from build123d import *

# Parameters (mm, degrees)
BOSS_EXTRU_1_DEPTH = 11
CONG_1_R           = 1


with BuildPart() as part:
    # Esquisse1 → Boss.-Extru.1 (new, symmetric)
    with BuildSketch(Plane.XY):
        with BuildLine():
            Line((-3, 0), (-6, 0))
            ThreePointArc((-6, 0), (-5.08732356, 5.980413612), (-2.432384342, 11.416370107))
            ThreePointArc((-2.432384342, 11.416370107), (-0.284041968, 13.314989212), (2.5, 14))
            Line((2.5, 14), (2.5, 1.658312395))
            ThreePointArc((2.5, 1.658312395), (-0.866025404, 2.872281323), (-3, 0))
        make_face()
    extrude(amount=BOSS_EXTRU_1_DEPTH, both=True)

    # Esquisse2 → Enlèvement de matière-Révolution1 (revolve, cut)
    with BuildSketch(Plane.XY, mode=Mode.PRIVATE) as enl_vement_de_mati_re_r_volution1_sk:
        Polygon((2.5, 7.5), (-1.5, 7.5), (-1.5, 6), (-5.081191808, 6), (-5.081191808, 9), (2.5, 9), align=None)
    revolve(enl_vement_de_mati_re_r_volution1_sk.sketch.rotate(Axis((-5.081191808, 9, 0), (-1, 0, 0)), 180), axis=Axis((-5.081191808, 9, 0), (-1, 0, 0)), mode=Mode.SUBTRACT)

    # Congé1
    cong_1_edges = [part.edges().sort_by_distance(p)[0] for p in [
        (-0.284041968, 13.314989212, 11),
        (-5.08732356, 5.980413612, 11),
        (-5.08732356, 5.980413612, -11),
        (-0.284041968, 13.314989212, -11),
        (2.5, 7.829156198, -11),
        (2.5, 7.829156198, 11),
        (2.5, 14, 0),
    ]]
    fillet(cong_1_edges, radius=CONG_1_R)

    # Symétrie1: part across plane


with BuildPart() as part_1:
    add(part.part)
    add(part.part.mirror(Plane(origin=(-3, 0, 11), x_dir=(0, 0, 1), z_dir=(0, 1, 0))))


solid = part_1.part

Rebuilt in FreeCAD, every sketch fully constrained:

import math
import FreeCAD as App
import Part
import Sketcher
Q = App.Units.Quantity


def edges_at(feature, points):
    """Names of the edges that pass closest to the given points."""
    edges = feature.Shape.Edges
    near = lambda p: min(range(len(edges)), key=lambda i: edges[i].distToShape(Part.Vertex(*p))[0])
    return sorted({f"Edge{near(p) + 1}" for p in points})


def add_polygon(sketch, points):
    """Adds a closed chain of lines whose ends are joined by coincident constraints."""
    first, n = sketch.GeometryCount, len(points)
    for a, b in zip(points, points[1:] + points[:1]):
        sketch.addGeometry(Part.LineSegment(App.Vector(*a, 0), App.Vector(*b, 0)), False)
    for i in range(n):
        sketch.addConstraint(Sketcher.Constraint("Coincident", first + i, 2, first + (i + 1) % n, 1))

doc = App.newDocument("Part")
params = doc.addObject("Spreadsheet::Sheet", "Params")
for row, (alias, value) in enumerate([
    ("sketch1_radius", "3 mm"),
    ("sketch1_radius2", "6 mm"),
    ("sketch1_width", "3 mm"),
    ("sketch1_radius3", "20.05 mm"),
    ("pad1_length", "22 mm"),
    ("sketch2_width", "4 mm"),
    ("sketch2_height", "3 mm"),
    ("groove_angle", "360 deg"),
    ("fillet_radius", "1 mm"),
], start=1):
    params.set(f"A{row}", alias)
    params.set(f"B{row}", "=" + value)
    params.setAlias(f"B{row}", alias)

body = doc.addObject("PartDesign::Body", "Body")

# Sketch on XY plane
sketch1 = body.newObject("Sketcher::SketchObject", "Sketch")
sketch1.AttachmentSupport = (doc.getObject("XY_Plane"), [""])
sketch1.MapMode = "FlatFace"
sketch1.addGeometry([
    Part.LineSegment(App.Vector(-6, 0, 0), App.Vector(-3, 0, 0)),  # 0
    Part.ArcOfCircle(Part.Circle(App.Vector(0, 0, 0), App.Vector(0, 0, 1), 3), math.radians(34), math.radians(180)),  # 1
    Part.LineSegment(App.Vector(2.5, 1.7, 0), App.Vector(2.5, 14, 0)),  # 2
    Part.ArcOfCircle(Part.Circle(App.Vector(2.5, 8, 0), App.Vector(0, 0, 1), 6), math.radians(90), math.radians(145)),  # 3
    Part.ArcOfCircle(Part.Circle(App.Vector(14, 0, 0), App.Vector(0, 0, 1), 20), math.radians(145), math.radians(180)),  # 4
], False)
sketch1.addConstraint([
    Sketcher.Constraint("Coincident", 0, 2, 1, 2),
    Sketcher.Constraint("Coincident", 1, 1, 2, 1),
    Sketcher.Constraint("Coincident", 2, 2, 3, 1),
    Sketcher.Constraint("Tangent", 3, 2, 4, 1),
    Sketcher.Constraint("Coincident", 4, 2, 0, 1),
    Sketcher.Constraint("Horizontal", 0),
    Sketcher.Constraint("Vertical", 2),
    Sketcher.Constraint("Coincident", 1, 3, -1, 1),
    Sketcher.Constraint("PointOnObject", 4, 3, -1),
    Sketcher.Constraint("PointOnObject", 0, 2, -1),
    Sketcher.Constraint("Vertical", 3, 3, 1, 1),
    Sketcher.Constraint("Radius", 1, Q("3 mm")),
    Sketcher.Constraint("Radius", 3, Q("6 mm")),
    Sketcher.Constraint("DistanceX", 0, 1, 0, 2, Q("3 mm")),
    Sketcher.Constraint("Radius", 4, Q("20.05 mm")),
    Sketcher.Constraint("DistanceY", -1, 1, 3, 3, Q("8 mm")),
])
sketch1.setExpression("Constraints[11]", "Params.sketch1_radius")
sketch1.setExpression("Constraints[12]", "Params.sketch1_radius2")
sketch1.setExpression("Constraints[13]", "Params.sketch1_width")
sketch1.setExpression("Constraints[14]", "Params.sketch1_radius3")
pad1 = body.newObject("PartDesign::Pad", "Pad")
pad1.Profile = sketch1
pad1.setExpression("Length", "Params.pad1_length")
pad1.Midplane = True

# Sketch on XY plane
sketch2 = body.newObject("Sketcher::SketchObject", "Sketch001")
sketch2.AttachmentSupport = (doc.getObject("XY_Plane"), [""])
sketch2.MapMode = "FlatFace"
add_polygon(sketch2, [(-1.5, 7.5), (2.5, 7.5), (2.5, 9), (-5.1, 9), (-5.1, 6), (-1.5, 6)])  # lines 0-5
sketch2.addGeometry(Part.LineSegment(App.Vector(2.5, 9, 0), App.Vector(-5.1, 9, 0)), True)  # axis
sketch2.addConstraint([
    Sketcher.Constraint("Horizontal", 0),
    Sketcher.Constraint("Vertical", 1),
    Sketcher.Constraint("Horizontal", 2),
    Sketcher.Constraint("Vertical", 3),
    Sketcher.Constraint("Horizontal", 4),
    Sketcher.Constraint("Vertical", 5),
    Sketcher.Constraint("Horizontal", 6),
    Sketcher.Constraint("Coincident", 6, 1, 1, 2),
    Sketcher.Constraint("Vertical", 3, 2, 6, 2),
    Sketcher.Constraint("Equal", 1, 5),
    Sketcher.Constraint("DistanceX", 0, 1, 0, 2, Q("4 mm")),
    Sketcher.Constraint("DistanceY", 3, 2, 3, 1, Q("3 mm")),
    Sketcher.Constraint("DistanceY", -1, 1, 1, 2, Q("9 mm")),
    Sketcher.Constraint("DistanceX", -1, 1, 0, 2, Q("2.5 mm")),
    Sketcher.Constraint("DistanceX", 2, 2, 2, 1, Q("7.581192 mm")),
])
sketch2.setExpression("Constraints[16]", "Params.sketch2_width")
sketch2.setExpression("Constraints[17]", "Params.sketch2_height")
groove = body.newObject("PartDesign::Groove", "Groove")
groove.Profile = sketch2
groove.ReferenceAxis = (sketch2, ["Axis0"])
groove.setExpression("Angle", "Params.groove_angle")
doc.recompute()

fillet = body.newObject("PartDesign::Fillet", "Fillet")
fillet.Base = (groove, edges_at(groove, [
    (-0.284, 13.315, 11),
    (-5.087, 5.98, 11),
    (-5.087, 5.98, -11),
    (-0.284, 13.315, -11),
    (2.5, 7.829, -11),
    (2.5, 7.829, 11),
    (2.5, 14, 0),
]))
fillet.setExpression("Radius", "Params.fillet_radius")
body2 = doc.addObject("PartDesign::Body", "Body001")
doc.recompute()

body2.BaseFeature = body
doc.recompute()

mirroring = doc.addObject("Part::Mirroring", "Mirroring")
mirroring.Source = body
mirroring.Base = App.Vector(-3, 0, 11)
mirroring.Normal = App.Vector(0, 1, 0)
body3 = doc.addObject("PartDesign::Body", "Body002")
body3.BaseFeature = mirroring
boolean = body2.newObject("PartDesign::Boolean", "Boolean")
boolean.Type = "Fuse"
boolean.addObjects([body3])
doc.recompute()
mirroring.Visibility = False

doc.recompute()
